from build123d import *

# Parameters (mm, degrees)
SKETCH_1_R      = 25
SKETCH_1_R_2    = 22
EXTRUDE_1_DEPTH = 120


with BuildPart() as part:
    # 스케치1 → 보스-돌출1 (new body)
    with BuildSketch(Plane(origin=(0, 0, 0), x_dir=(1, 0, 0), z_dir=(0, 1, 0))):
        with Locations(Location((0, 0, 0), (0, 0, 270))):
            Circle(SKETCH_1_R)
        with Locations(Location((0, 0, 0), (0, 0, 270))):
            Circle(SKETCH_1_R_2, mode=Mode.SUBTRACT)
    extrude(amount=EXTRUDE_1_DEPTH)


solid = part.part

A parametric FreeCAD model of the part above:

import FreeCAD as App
import Part
import Sketcher

doc = App.newDocument("Part")
body = doc.addObject("PartDesign::Body", "Body")

# Sketch on XZ plane
sketch1 = body.newObject("Sketcher::SketchObject", "Sketch")
sketch1.AttachmentSupport = (doc.getObject("XZ_Plane"), [""])
sketch1.MapMode = "FlatFace"
sketch1.addGeometry(Part.Circle(App.Vector(0, 0, 0), App.Vector(0, 0, 1), 25), False)
sketch1.addGeometry(Part.Circle(App.Vector(0, 0, 0), App.Vector(0, 0, 1), 22), False)
sketch1.addConstraint(Sketcher.Constraint("Coincident", 0, 3, -1, 1))
sketch1.addConstraint(Sketcher.Constraint("Coincident", 1, 3, -1, 1))
sketch1.addConstraint(Sketcher.Constraint("Diameter", 0, 50.0))
sketch1.addConstraint(Sketcher.Constraint("Diameter", 1, 44.0))
pad1 = body.newObject("PartDesign::Pad", "Pad")
pad1.Profile = sketch1
pad1.Length = 120
pad1.Reversed = True

doc.recompute()
